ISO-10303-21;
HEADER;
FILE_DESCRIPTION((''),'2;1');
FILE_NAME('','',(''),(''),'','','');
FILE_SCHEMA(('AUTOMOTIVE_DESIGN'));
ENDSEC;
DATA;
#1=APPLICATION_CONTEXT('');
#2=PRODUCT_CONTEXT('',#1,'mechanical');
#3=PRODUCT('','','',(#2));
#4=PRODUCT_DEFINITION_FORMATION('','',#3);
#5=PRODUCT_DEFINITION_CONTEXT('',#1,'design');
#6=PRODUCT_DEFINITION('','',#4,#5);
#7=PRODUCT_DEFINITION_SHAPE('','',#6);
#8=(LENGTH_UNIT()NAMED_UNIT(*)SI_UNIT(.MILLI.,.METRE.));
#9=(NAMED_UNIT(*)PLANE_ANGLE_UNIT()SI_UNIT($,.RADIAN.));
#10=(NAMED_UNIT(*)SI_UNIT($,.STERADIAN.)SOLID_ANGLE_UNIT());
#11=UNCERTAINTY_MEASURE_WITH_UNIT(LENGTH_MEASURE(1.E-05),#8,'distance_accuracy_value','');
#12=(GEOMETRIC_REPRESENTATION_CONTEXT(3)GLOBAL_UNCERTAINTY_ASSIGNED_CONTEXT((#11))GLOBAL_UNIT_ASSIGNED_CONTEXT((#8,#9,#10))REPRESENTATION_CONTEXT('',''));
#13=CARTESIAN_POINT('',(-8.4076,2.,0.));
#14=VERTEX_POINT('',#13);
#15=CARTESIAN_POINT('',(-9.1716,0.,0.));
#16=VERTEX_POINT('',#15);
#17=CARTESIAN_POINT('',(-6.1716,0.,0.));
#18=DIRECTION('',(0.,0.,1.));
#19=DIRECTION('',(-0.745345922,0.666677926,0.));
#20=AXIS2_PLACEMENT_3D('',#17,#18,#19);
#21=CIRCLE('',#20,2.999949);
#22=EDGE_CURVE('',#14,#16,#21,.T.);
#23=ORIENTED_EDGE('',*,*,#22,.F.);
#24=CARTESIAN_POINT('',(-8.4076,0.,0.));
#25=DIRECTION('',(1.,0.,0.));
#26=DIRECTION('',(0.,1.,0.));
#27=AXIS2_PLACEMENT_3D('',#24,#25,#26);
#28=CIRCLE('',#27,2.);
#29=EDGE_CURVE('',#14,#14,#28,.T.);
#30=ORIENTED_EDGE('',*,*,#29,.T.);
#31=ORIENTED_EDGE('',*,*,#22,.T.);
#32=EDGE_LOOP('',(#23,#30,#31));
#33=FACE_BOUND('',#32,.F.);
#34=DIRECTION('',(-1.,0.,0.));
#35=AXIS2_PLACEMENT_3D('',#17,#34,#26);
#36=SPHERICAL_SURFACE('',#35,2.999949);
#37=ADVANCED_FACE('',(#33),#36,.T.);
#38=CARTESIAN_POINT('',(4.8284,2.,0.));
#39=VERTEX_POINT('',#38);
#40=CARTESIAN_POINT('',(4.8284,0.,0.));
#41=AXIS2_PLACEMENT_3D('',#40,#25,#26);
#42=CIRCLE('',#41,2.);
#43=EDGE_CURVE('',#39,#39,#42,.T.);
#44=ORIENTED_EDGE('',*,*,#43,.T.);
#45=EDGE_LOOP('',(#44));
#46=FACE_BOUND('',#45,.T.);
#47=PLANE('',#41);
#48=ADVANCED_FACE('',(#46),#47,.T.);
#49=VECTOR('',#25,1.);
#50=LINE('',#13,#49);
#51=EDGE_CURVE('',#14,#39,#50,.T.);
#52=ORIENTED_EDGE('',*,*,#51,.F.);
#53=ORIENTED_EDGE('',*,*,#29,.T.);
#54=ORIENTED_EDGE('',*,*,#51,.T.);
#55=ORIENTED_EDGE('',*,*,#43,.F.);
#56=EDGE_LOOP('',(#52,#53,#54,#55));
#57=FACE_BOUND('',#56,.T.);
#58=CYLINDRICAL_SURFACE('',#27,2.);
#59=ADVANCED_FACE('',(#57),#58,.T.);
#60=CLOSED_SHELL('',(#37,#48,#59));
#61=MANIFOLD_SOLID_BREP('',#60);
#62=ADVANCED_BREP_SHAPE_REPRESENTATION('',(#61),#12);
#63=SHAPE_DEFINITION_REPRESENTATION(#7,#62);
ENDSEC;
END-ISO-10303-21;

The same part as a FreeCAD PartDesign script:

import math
import FreeCAD as App
import Part
import Sketcher
Q = App.Units.Quantity

doc = App.newDocument("Part")
body = doc.addObject("PartDesign::Body", "Body")

sketch1 = body.newObject("Sketcher::SketchObject", "Sketch")
sketch1.AttachmentSupport = (doc.getObject("XY_Plane"), [""])
sketch1.MapMode = "FlatFace"
sketch1.addGeometry([
    Part.LineSegment(App.Vector(4.8284, 2, 0), App.Vector(-8.4076, 2, 0)),
    Part.ArcOfCircle(Part.Circle(App.Vector(-6.1716, 0, 0), App.Vector(0, 0, 1), 2.999949), math.radians(138.18882), math.radians(180)),
    Part.LineSegment(App.Vector(-9.1716, 0, 0), App.Vector(4.8284, 0, 0)),
    Part.LineSegment(App.Vector(4.8284, 0, 0), App.Vector(4.8284, 2, 0)),
], False)
sketch1.addConstraint([
    Sketcher.Constraint("Coincident", 0, 2, 1, 1),
    Sketcher.Constraint("Coincident", 1, 2, 2, 1),
    Sketcher.Constraint("Coincident", 2, 2, 3, 1),
    Sketcher.Constraint("Coincident", 3, 2, 0, 1),
    Sketcher.Constraint("Horizontal", 0),
    Sketcher.Constraint("Horizontal", 2),
    Sketcher.Constraint("Vertical", 3),
    Sketcher.Constraint("PointOnObject", 1, 3, -1),
    Sketcher.Constraint("PointOnObject", 1, 2, -1),
    Sketcher.Constraint("Radius", 1, Q("3 mm")),
    Sketcher.Constraint("DistanceX", 2, 1, 2, 2, Q("14 mm")),
    Sketcher.Constraint("DistanceY", 3, 1, 3, 2, Q("2 mm")),
    Sketcher.Constraint("DistanceX", 1, 3, -1, 1, Q("6.1716 mm")),
])
revolution = body.newObject("PartDesign::Revolution", "Revolution")
revolution.Profile = sketch1
revolution.ReferenceAxis = (sketch1, ["H_Axis"])
revolution.Angle = 360

doc.recompute()
